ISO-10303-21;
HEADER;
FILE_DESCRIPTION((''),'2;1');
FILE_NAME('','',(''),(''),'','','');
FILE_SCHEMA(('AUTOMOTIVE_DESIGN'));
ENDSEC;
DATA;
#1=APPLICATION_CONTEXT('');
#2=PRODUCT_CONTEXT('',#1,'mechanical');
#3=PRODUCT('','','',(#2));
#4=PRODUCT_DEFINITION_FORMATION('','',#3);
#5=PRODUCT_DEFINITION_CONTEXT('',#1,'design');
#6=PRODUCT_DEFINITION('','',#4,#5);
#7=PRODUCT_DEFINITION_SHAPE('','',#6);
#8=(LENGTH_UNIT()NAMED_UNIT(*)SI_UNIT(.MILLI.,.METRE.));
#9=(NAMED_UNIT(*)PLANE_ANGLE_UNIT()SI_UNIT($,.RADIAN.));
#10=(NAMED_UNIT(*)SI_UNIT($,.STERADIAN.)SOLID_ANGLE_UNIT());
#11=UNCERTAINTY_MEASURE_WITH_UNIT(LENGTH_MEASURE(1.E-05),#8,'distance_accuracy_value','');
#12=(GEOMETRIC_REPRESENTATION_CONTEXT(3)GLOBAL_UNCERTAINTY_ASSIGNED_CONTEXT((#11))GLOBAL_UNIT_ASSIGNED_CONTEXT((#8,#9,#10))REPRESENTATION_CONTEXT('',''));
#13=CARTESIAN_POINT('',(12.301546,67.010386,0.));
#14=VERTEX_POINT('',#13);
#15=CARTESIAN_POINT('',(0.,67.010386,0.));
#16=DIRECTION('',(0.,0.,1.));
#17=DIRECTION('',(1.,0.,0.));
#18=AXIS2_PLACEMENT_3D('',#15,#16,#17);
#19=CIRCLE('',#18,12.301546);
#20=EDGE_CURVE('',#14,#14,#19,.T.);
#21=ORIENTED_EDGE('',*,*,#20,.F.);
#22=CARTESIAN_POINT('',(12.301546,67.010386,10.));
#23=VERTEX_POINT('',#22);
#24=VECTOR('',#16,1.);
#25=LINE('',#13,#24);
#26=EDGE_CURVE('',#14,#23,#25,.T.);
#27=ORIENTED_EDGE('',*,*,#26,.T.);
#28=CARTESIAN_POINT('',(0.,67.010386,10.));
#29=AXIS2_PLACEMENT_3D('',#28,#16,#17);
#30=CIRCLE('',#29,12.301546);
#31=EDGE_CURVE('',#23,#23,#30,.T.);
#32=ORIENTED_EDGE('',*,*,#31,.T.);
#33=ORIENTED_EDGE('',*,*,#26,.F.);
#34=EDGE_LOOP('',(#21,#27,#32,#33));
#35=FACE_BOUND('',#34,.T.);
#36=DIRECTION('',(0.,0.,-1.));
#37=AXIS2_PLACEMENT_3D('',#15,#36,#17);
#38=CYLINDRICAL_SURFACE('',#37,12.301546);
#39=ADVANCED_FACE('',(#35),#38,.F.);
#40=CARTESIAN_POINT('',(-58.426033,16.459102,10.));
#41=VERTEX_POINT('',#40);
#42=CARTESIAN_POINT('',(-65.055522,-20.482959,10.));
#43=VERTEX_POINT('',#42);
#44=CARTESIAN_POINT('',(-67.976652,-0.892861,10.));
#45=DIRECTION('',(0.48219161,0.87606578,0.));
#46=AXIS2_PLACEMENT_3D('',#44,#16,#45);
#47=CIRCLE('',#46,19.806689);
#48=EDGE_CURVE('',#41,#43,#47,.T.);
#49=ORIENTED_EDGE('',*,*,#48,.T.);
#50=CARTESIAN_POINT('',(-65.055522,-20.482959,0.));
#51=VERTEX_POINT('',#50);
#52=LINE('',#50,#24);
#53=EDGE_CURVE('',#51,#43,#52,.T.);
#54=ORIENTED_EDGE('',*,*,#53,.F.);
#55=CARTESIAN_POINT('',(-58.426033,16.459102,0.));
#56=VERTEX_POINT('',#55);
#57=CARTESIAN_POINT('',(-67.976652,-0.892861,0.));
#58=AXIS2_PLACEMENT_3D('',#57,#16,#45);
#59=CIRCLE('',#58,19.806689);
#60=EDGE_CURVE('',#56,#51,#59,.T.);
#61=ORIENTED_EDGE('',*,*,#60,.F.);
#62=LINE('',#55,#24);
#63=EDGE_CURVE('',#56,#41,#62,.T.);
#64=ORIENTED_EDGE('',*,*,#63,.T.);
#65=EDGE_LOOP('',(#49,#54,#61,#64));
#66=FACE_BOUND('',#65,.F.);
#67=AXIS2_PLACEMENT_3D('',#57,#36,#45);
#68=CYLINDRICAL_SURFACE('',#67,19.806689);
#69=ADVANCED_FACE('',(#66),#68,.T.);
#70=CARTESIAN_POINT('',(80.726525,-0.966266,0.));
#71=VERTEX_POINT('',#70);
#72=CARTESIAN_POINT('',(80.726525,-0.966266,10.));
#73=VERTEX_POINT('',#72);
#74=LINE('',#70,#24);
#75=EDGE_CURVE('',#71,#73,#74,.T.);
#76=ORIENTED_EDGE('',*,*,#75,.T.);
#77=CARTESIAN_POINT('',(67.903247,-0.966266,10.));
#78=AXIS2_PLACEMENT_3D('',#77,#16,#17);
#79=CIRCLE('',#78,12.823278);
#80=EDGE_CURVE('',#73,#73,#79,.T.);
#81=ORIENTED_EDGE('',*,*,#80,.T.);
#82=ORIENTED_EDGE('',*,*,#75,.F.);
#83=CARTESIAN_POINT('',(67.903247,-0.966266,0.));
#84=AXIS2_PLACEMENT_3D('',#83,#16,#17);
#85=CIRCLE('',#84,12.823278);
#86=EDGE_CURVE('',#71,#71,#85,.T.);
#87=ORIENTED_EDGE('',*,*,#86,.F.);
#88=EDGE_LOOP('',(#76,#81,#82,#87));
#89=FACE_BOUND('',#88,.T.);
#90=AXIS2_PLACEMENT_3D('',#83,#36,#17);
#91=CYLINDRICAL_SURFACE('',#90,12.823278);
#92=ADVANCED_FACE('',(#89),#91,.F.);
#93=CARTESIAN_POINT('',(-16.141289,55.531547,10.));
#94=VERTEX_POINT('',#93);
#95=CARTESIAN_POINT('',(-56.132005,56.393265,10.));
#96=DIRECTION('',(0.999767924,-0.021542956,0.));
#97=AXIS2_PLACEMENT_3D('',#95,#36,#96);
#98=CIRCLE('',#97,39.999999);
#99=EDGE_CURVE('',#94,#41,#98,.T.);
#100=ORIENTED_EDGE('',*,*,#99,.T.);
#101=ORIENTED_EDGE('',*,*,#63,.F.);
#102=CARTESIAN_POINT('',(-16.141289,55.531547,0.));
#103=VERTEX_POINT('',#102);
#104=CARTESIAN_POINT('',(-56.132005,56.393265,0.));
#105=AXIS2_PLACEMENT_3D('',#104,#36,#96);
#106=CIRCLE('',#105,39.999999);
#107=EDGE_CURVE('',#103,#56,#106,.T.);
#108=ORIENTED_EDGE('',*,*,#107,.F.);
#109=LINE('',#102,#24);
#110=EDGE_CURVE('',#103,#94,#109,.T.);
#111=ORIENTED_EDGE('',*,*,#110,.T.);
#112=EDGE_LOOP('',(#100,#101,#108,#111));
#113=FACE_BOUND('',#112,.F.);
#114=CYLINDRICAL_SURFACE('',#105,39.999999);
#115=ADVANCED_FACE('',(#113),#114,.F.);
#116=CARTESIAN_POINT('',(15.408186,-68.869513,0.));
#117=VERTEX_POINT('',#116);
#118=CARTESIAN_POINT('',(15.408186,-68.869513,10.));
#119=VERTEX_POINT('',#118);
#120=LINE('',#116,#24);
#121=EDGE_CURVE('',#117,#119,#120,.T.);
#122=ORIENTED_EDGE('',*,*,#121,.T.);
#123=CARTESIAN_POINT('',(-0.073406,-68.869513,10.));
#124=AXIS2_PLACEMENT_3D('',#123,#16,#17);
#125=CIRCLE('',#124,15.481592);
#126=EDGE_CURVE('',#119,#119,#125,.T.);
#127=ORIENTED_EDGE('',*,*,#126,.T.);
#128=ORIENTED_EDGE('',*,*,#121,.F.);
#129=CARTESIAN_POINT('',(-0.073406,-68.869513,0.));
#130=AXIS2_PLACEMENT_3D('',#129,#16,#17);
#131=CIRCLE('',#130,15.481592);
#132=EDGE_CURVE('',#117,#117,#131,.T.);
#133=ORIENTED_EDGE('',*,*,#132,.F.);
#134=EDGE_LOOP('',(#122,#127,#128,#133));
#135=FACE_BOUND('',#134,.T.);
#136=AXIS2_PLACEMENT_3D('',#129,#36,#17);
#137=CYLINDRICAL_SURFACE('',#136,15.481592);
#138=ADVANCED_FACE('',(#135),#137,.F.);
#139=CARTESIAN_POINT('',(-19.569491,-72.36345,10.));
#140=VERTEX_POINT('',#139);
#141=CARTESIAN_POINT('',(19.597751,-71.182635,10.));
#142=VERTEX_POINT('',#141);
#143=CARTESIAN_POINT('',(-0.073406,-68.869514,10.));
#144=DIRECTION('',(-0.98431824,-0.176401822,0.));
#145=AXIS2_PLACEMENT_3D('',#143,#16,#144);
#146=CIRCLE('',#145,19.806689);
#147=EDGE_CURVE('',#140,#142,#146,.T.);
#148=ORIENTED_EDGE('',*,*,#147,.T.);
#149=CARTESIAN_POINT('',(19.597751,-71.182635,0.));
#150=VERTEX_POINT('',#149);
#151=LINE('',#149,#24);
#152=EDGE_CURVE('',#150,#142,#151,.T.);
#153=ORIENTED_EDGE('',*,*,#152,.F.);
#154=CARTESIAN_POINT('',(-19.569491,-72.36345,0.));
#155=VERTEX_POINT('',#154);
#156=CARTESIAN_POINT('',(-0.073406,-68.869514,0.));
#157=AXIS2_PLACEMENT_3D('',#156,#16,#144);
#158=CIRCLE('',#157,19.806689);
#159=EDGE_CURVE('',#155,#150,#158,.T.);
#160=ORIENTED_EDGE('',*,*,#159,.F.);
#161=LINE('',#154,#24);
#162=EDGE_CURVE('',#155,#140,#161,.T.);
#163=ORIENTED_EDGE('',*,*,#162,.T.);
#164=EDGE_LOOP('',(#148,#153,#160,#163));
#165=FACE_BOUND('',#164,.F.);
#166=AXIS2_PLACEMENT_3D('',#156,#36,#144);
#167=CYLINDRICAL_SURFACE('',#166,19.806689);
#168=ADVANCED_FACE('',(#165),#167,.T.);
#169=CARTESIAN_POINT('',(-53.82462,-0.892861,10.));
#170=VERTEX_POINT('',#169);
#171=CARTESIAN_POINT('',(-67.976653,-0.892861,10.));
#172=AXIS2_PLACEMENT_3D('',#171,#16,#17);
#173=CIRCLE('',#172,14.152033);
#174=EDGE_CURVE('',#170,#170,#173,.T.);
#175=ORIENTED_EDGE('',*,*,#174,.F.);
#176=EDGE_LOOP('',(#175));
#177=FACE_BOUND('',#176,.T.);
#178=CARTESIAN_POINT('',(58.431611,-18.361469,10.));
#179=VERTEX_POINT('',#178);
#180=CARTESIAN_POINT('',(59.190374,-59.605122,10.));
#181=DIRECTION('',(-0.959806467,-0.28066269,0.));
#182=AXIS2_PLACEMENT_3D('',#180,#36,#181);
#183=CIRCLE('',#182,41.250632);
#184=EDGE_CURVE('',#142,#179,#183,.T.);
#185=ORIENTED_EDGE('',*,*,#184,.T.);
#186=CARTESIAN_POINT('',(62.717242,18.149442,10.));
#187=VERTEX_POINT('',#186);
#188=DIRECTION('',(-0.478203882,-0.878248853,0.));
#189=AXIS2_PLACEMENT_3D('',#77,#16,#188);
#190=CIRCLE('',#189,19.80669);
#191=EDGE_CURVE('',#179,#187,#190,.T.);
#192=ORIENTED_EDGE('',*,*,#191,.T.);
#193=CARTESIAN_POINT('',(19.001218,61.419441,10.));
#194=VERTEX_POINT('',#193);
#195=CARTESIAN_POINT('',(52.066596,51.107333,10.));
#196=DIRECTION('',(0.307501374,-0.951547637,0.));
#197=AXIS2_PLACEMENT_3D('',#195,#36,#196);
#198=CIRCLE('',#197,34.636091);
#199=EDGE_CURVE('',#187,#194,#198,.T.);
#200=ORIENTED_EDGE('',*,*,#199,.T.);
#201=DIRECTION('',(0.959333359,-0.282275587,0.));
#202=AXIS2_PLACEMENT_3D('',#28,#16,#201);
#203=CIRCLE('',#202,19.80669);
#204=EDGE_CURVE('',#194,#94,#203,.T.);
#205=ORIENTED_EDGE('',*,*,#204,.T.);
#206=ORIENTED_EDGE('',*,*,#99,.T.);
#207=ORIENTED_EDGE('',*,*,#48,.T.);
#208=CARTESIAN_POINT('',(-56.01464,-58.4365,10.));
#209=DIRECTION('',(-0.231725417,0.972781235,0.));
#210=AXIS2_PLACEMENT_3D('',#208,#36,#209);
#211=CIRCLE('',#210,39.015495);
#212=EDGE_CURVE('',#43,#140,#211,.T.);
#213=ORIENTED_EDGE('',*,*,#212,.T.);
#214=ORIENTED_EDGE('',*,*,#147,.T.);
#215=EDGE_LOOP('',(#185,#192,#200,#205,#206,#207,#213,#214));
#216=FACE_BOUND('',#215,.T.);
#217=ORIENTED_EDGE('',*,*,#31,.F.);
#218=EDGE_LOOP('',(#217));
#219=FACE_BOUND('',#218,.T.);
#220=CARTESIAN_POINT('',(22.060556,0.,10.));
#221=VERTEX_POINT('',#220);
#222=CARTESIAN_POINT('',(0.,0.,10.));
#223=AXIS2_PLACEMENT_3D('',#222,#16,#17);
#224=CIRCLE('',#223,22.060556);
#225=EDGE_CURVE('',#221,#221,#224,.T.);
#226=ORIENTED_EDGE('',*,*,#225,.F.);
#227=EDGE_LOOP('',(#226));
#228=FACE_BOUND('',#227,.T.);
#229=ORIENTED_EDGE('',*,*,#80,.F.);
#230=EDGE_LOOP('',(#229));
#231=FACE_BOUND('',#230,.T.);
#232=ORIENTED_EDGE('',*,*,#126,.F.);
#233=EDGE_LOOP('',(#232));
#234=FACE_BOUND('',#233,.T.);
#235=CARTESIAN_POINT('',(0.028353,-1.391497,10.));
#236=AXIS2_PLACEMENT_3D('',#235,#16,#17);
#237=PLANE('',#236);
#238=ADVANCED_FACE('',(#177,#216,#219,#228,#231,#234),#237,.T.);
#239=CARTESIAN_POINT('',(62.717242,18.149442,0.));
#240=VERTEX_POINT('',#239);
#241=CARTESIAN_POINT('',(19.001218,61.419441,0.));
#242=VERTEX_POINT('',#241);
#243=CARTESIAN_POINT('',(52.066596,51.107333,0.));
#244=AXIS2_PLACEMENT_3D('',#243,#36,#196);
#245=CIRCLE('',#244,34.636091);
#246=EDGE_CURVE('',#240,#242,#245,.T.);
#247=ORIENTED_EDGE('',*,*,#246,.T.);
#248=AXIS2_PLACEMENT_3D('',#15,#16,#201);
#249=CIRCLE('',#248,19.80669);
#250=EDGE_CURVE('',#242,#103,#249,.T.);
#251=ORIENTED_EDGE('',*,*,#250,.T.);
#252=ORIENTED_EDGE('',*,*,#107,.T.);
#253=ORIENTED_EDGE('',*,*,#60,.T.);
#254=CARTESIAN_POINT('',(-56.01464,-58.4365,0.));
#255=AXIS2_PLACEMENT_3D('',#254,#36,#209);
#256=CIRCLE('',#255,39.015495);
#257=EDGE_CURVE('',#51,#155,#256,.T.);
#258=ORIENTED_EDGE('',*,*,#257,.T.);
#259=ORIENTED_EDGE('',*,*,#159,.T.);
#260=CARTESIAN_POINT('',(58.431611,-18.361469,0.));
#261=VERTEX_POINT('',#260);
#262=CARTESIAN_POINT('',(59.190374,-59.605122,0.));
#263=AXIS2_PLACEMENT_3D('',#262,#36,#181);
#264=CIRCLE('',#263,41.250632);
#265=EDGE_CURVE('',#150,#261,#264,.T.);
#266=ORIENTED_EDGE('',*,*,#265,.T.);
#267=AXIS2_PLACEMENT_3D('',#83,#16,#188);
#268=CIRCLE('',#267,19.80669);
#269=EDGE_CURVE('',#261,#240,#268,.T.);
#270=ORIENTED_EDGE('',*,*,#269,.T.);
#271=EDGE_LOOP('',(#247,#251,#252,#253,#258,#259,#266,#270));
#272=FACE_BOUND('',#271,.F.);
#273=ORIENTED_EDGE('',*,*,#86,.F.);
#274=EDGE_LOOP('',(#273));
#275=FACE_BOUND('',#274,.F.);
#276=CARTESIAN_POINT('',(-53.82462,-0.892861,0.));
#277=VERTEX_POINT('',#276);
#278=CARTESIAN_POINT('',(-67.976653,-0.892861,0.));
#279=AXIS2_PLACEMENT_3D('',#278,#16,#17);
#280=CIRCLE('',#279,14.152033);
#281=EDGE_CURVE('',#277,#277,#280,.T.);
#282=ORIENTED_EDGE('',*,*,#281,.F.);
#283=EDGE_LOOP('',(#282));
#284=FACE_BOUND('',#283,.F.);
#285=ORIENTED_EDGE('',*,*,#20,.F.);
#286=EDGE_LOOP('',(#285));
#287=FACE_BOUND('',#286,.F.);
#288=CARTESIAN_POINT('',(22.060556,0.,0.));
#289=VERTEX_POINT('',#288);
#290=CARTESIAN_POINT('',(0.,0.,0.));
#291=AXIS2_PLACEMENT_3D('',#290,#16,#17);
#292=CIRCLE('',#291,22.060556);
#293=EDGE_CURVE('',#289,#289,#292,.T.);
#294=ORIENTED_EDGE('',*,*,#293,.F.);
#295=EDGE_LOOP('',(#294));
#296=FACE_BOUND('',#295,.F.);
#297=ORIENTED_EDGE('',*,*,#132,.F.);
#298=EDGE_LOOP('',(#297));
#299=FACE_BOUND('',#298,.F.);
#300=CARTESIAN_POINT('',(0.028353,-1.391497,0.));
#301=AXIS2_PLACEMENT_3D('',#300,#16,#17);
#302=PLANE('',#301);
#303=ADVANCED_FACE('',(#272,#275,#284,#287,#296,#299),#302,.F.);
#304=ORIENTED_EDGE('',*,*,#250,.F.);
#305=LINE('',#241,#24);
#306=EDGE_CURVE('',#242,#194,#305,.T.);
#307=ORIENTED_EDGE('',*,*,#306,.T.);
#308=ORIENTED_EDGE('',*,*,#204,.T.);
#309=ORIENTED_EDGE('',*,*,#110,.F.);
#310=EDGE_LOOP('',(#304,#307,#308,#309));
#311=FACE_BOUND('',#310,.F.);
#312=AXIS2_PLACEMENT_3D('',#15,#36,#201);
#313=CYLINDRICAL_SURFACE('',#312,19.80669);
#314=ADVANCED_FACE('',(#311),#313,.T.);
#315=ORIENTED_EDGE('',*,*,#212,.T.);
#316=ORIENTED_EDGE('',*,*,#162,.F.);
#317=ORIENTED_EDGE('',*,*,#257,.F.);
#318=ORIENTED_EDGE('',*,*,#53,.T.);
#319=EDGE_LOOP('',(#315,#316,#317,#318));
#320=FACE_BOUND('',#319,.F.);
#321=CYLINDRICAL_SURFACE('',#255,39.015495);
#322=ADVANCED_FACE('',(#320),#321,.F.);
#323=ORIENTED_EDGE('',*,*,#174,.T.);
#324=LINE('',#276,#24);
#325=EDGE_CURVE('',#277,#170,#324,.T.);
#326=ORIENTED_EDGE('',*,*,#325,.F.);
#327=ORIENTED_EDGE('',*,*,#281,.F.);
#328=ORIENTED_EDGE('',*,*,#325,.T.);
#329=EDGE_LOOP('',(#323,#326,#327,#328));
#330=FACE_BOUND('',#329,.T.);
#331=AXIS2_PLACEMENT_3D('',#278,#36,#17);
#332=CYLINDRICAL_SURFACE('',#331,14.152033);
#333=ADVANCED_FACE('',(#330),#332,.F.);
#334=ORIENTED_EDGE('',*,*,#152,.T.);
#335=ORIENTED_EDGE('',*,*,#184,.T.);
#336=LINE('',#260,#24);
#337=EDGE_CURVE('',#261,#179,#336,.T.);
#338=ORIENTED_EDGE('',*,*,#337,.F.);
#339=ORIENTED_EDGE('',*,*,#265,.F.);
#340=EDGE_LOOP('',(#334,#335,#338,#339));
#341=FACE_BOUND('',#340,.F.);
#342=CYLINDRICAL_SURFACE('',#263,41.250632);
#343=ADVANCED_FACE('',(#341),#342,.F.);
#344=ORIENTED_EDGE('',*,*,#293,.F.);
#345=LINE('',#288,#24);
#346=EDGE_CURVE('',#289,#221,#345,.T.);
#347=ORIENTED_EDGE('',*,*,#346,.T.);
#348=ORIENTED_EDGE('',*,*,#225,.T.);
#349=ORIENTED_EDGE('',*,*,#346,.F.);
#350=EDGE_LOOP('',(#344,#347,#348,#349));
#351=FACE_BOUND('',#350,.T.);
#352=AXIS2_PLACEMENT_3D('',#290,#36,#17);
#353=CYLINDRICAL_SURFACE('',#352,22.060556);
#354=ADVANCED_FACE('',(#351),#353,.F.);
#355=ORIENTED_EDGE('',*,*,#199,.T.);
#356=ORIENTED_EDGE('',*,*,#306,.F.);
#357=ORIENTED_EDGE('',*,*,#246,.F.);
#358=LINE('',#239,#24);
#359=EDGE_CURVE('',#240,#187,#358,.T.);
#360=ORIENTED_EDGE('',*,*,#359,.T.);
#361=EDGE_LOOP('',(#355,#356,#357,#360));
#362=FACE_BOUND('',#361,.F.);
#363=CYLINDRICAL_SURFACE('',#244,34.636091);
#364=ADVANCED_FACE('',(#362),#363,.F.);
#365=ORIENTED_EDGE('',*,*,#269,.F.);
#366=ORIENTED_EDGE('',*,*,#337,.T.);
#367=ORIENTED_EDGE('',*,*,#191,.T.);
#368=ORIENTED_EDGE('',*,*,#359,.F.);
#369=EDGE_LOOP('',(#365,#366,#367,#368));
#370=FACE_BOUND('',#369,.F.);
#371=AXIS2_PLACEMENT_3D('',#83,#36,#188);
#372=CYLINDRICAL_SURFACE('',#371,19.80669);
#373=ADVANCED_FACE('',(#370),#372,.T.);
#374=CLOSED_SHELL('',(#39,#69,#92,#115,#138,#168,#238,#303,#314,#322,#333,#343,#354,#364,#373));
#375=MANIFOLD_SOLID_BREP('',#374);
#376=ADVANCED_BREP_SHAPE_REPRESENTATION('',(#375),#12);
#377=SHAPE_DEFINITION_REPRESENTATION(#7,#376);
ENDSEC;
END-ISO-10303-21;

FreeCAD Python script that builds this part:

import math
import FreeCAD as App
import Part
import Sketcher
from FreeCAD import Vector
Q = App.Units.Quantity

doc = App.newDocument("Part")
params = doc.addObject("Spreadsheet::Sheet", "Params")
for row, (alias, value) in enumerate([
    ("sketch1_radius", "39.999999 mm"),
    ("pad1_length", "10 mm"),
], start=1):
    params.set(f"A{row}", alias)
    params.set(f"B{row}", "=" + value)
    params.setAlias(f"B{row}", alias)

body = doc.addObject("PartDesign::Body", "Body")

sketch1 = doc.addObject("Sketcher::SketchObject", "Sketch")
body.addObject(sketch1)
sketch1.AttachmentSupport = (doc.XY_Plane, [""])
sketch1.MapMode = "FlatFace"
sketch1.addGeometry(Part.ArcOfCircle(Part.Circle(Vector(67.903247, -0.966266, 0), Vector(0, 0, 1), 19.80669), math.radians(-118.56816), math.radians(105.178734)), False)
sketch1.addGeometry(Part.ArcOfCircle(Part.Circle(Vector(52.066596, 51.107333, 0), Vector(0, 0, 1), 34.636091), math.radians(162.678853), math.radians(287.908716)), False)
sketch1.addGeometry(Part.ArcOfCircle(Part.Circle(Vector(0, 67.010386, 0), Vector(0, 0, 1), 19.80669), math.radians(-16.396066), math.radians(215.418444)), False)
sketch1.addGeometry(Part.ArcOfCircle(Part.Circle(Vector(-56.132005, 56.393265, 0), Vector(0, 0, 1), 39.999999), math.radians(-93.287757), math.radians(-1.234416)), False)
sketch1.addGeometry(Part.ArcOfCircle(Part.Circle(Vector(-67.976652, -0.892861, 0), Vector(0, 0, 1), 19.806689), math.radians(61.171362), math.radians(278.481034)), False)
sketch1.addGeometry(Part.ArcOfCircle(Part.Circle(Vector(-56.01464, -58.4365, 0), Vector(0, 0, 1), 39.015495), math.radians(-20.913583), math.radians(103.398676)), False)
sketch1.addGeometry(Part.ArcOfCircle(Part.Circle(Vector(-0.073406, -68.869514, 0), Vector(0, 0, 1), 19.806689), math.radians(-169.839754), math.radians(-6.706583)), False)
sketch1.addGeometry(Part.ArcOfCircle(Part.Circle(Vector(59.190374, -59.605122, 0), Vector(0, 0, 1), 41.250632), math.radians(91.053957), math.radians(196.29976)), False)
sketch1.addGeometry(Part.Circle(Vector(-0.073406, -68.869513, 0), Vector(0, 0, 1), 15.481592), False)
sketch1.addGeometry(Part.Circle(Vector(-67.976653, -0.892861, 0), Vector(0, 0, 1), 14.152033), False)
sketch1.addGeometry(Part.Circle(Vector(0, 0, 0), Vector(0, 0, 1), 22.060556), False)
sketch1.addGeometry(Part.Circle(Vector(67.903247, -0.966266, 0), Vector(0, 0, 1), 12.823278), False)
sketch1.addGeometry(Part.Circle(Vector(0, 67.010386, 0), Vector(0, 0, 1), 12.301546), False)
sketch1.addConstraint(Sketcher.Constraint("Coincident", 0, 2, 1, 2))
sketch1.addConstraint(Sketcher.Constraint("Coincident", 1, 1, 2, 1))
sketch1.addConstraint(Sketcher.Constraint("Coincident", 2, 2, 3, 2))
sketch1.addConstraint(Sketcher.Constraint("Coincident", 3, 1, 4, 1))
sketch1.addConstraint(Sketcher.Constraint("Coincident", 4, 2, 5, 2))
sketch1.addConstraint(Sketcher.Constraint("Coincident", 5, 1, 6, 1))
sketch1.addConstraint(Sketcher.Constraint("Coincident", 6, 2, 7, 2))
sketch1.addConstraint(Sketcher.Constraint("Coincident", 7, 1, 0, 1))
sketch1.addConstraint(Sketcher.Constraint("Coincident", 10, 3, -1, 1))
sketch1.addConstraint(Sketcher.Constraint("Coincident", 8, 3, 6, 3))
sketch1.addConstraint(Sketcher.Constraint("Coincident", 9, 3, 4, 3))
sketch1.addConstraint(Sketcher.Constraint("Coincident", 11, 3, 0, 3))
sketch1.addConstraint(Sketcher.Constraint("Coincident", 12, 3, 2, 3))
sketch1.addConstraint(Sketcher.Constraint("PointOnObject", 2, 3, -2))
sketch1.addConstraint(Sketcher.Constraint("Radius", 3, Q("39.999999 mm")))
sketch1.addConstraint(Sketcher.Constraint("Diameter", 10, Q("44.121112 mm")))
sketch1.addConstraint(Sketcher.Constraint("Diameter", 12, Q("24.603092 mm")))
sketch1.addConstraint(Sketcher.Constraint("Radius", 0, Q("19.80669 mm")))
sketch1.addConstraint(Sketcher.Constraint("Radius", 1, Q("34.636091 mm")))
sketch1.addConstraint(Sketcher.Constraint("Radius", 2, Q("19.80669 mm")))
sketch1.addConstraint(Sketcher.Constraint("Radius", 4, Q("19.806689 mm")))
sketch1.addConstraint(Sketcher.Constraint("Radius", 6, Q("19.806689 mm")))
sketch1.addConstraint(Sketcher.Constraint("Radius", 7, Q("41.250632 mm")))
sketch1.addConstraint(Sketcher.Constraint("DistanceX", 6, 3, 1, 3, Q("52.140002 mm")))
sketch1.addConstraint(Sketcher.Constraint("DistanceY", 0, 2, 1, 1, Q("43.269999 mm")))
sketch1.addConstraint(Sketcher.Constraint("Diameter", 8, Q("30.963184 mm")))
sketch1.addConstraint(Sketcher.Constraint("Diameter", 9, Q("28.304066 mm")))
sketch1.addConstraint(Sketcher.Constraint("Diameter", 11, Q("25.646556 mm")))
sketch1.addConstraint(Sketcher.Constraint("Radius", 5, Q("39.015495 mm")))
sketch1.addConstraint(Sketcher.Constraint("DistanceY", 5, 3, -1, 1, Q("58.4365 mm")))
sketch1.addConstraint(Sketcher.Constraint("DistanceY", -1, 1, 3, 1, Q("16.459102 mm")))
sketch1.addConstraint(Sketcher.Constraint("DistanceY", 0, 3, 1, 3, Q("52.073599 mm")))
sketch1.addConstraint(Sketcher.Constraint("DistanceX", 3, 3, 1, 3, Q("108.198602 mm")))
sketch1.addConstraint(Sketcher.Constraint("DistanceX", 4, 3, 0, 3, Q("135.879899 mm")))
sketch1.addConstraint(Sketcher.Constraint("DistanceY", 6, 3, 2, 3, Q("135.8799 mm")))
sketch1.addConstraint(Sketcher.Constraint("DistanceY", 4, 2, 4, 3, Q("19.590098 mm")))
sketch1.addConstraint(Sketcher.Constraint("DistanceY", 4, 3, -1, 1, Q("0.892861 mm")))
sketch1.addConstraint(Sketcher.Constraint("DistanceX", 5, 3, -1, 1, Q("56.01464 mm")))
sketch1.addConstraint(Sketcher.Constraint("DistanceY", 7, 3, -1, 1, Q("59.605122 mm")))
sketch1.addConstraint(Sketcher.Constraint("DistanceY", -1, 1, 0, 2, Q("18.149442 mm")))
sketch1.addConstraint(Sketcher.Constraint("DistanceX", -1, 1, 1, 1, Q("19.001218 mm")))
sketch1.addConstraint(Sketcher.Constraint("DistanceX", -1, 1, 6, 2, Q("19.597751 mm")))
sketch1.setExpression("Constraints[14]", "Params.sketch1_radius")
pad1 = doc.addObject("PartDesign::Pad", "Pad")
body.addObject(pad1)
pad1.Profile = sketch1
pad1.setExpression("Length", "Params.pad1_length")

doc.recompute()
